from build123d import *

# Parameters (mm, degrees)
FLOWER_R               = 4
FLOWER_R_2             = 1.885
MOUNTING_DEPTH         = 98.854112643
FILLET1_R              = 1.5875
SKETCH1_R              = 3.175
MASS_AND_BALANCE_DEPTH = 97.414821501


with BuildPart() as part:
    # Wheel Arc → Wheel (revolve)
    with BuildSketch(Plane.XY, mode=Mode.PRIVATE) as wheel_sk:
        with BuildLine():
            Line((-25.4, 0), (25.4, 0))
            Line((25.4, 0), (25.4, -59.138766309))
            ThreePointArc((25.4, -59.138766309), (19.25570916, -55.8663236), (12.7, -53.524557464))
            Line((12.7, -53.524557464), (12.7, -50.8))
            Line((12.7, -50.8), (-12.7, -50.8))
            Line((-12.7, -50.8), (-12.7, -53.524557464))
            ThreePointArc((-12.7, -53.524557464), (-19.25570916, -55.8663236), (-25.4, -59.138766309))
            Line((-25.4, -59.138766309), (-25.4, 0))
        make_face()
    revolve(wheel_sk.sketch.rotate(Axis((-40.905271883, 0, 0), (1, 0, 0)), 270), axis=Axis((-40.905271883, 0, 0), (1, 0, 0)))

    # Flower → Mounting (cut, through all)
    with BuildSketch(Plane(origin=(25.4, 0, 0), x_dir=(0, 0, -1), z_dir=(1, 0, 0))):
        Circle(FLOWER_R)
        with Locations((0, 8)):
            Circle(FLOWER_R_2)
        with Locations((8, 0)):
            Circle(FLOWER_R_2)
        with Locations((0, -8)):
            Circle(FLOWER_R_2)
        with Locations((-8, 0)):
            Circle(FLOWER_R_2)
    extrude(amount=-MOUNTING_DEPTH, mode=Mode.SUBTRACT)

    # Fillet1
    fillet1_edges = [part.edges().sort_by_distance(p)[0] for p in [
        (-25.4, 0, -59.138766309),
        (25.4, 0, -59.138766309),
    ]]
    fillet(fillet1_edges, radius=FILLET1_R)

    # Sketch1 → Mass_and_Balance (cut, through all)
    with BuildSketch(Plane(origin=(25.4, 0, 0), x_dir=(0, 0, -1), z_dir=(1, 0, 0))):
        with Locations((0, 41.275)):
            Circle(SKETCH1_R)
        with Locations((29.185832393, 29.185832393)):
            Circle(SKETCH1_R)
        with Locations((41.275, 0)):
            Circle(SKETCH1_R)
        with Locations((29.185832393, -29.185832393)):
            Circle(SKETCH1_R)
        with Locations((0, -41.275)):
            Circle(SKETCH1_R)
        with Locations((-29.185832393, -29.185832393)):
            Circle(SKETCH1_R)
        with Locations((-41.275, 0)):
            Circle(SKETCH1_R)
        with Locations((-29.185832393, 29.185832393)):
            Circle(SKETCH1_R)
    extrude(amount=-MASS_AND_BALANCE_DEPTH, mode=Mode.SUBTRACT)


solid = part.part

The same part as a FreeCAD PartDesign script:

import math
import FreeCAD as App
import Part
import Sketcher

V = App.Vector
Q = App.Units.Quantity


def edges_at(feature, points):
    """Names of the edges that pass closest to the given points."""
    edges = feature.Shape.Edges
    near = lambda p: min(range(len(edges)), key=lambda i: edges[i].distToShape(Part.Vertex(*p))[0])
    return sorted({f"Edge{near(p) + 1}" for p in points})

doc = App.newDocument("Part")
body = doc.addObject("PartDesign::Body", "Body")

# Sketch on XY plane
sketch1 = body.newObject("Sketcher::SketchObject", "Sketch")
sketch1.AttachmentSupport = (doc.getObject("XY_Plane"), [""])
sketch1.MapMode = "FlatFace"
sketch1.addGeometry([
    Part.LineSegment(V(25.4, 0, 0), V(-25.4, 0, 0)),  # 0
    Part.LineSegment(V(-25.4, 0, 0), V(-25.4, -59.138766, 0)),  # 1
    Part.ArcOfCircle(Part.Circle(V(0, -99.425, 0), V(0, 0, 1), 47.625), math.radians(105.46601), math.radians(122.230953)),  # 2
    Part.LineSegment(V(-12.7, -53.524557, 0), V(-12.7, -50.8, 0)),  # 3
    Part.LineSegment(V(-12.7, -50.8, 0), V(12.7, -50.8, 0)),  # 4
    Part.LineSegment(V(12.7, -50.8, 0), V(12.7, -53.524557, 0)),  # 5
    Part.ArcOfCircle(Part.Circle(V(0, -99.425, 0), V(0, 0, 1), 47.625), math.radians(57.769047), math.radians(74.53399)),  # 6
    Part.LineSegment(V(25.4, -59.138766, 0), V(25.4, 0, 0)),  # 7
], False)
sketch1.addConstraint([
    Sketcher.Constraint("Coincident", 0, 2, 1, 1),
    Sketcher.Constraint("Coincident", 1, 2, 2, 2),
    Sketcher.Constraint("Coincident", 2, 1, 3, 1),
    Sketcher.Constraint("Coincident", 3, 2, 4, 1),
    Sketcher.Constraint("Coincident", 4, 2, 5, 1),
    Sketcher.Constraint("Coincident", 5, 2, 6, 2),
    Sketcher.Constraint("Coincident", 6, 1, 7, 1),
    Sketcher.Constraint("Coincident", 7, 2, 0, 1),
    Sketcher.Constraint("Horizontal", 0),
    Sketcher.Constraint("Vertical", 1),
    Sketcher.Constraint("Vertical", 3),
    Sketcher.Constraint("Horizontal", 4),
    Sketcher.Constraint("Vertical", 5),
    Sketcher.Constraint("Vertical", 7),
    Sketcher.Constraint("Coincident", 6, 3, 2, 3),
    Sketcher.Constraint("Equal", 2, 6),
    Sketcher.Constraint("Symmetric", 0, 2, 7, 2, -1, 1),
    Sketcher.Constraint("Symmetric", 2, 1, 5, 2, -2),
    Sketcher.Constraint("DistanceX", 0, 2, 0, 1, Q("2 in")),
    Sketcher.Constraint("DistanceX", 4, 1, 4, 2, Q("1 in")),
    Sketcher.Constraint("DistanceY", 3, 2, -1, 1, Q("2 in")),
    Sketcher.Constraint("Radius", 2, Q("1.875 in")),
    Sketcher.Constraint("DistanceY", 2, 3, -1, 1, 99.425),
])
revolution = body.newObject("PartDesign::Revolution", "Revolution")
revolution.Profile = sketch1
revolution.ReferenceAxis = (sketch1, ["H_Axis"])
revolution.Angle = 360

# Sketch on YZ plane
sketch2 = body.newObject("Sketcher::SketchObject", "Sketch001")
sketch2.AttachmentSupport = (doc.getObject("YZ_Plane"), [""])
sketch2.MapMode = "FlatFace"
sketch2.AttachmentOffset = App.Placement(V(0, 0, 1 * 25.4), App.Rotation())
sketch2.addGeometry([
    Part.Circle(V(0, 0, 0), V(0, 0, 1), 4),  # 0
    Part.Circle(V(8, 0, 0), V(0, 0, 1), 1.885),  # 1
    Part.Circle(V(0, -8, 0), V(0, 0, 1), 1.885),  # 2
    Part.Circle(V(-8, 0, 0), V(0, 0, 1), 1.885),  # 3
    Part.Circle(V(0, 8, 0), V(0, 0, 1), 1.885),  # 4
], False)
sketch2.addConstraint([
    Sketcher.Constraint("Coincident", 0, 3, -1, 1),
    Sketcher.Constraint("Equal", 1, 2),
    Sketcher.Constraint("Equal", 2, 3),
    Sketcher.Constraint("Equal", 3, 4),
    Sketcher.Constraint("Symmetric", 1, 3, 3, 3, -1, 1),
    Sketcher.Constraint("Symmetric", 2, 3, 4, 3, -1, 1),
    Sketcher.Constraint("PointOnObject", 1, 3, -1),
    Sketcher.Constraint("PointOnObject", 2, 3, -2),
    Sketcher.Constraint("Diameter", 0, 8.0),
    Sketcher.Constraint("Diameter", 1, 3.77),
    Sketcher.Constraint("DistanceX", -1, 1, 1, 3, 8.0),
    Sketcher.Constraint("DistanceY", 2, 3, -1, 1, 8.0),
])
pocket1 = body.newObject("PartDesign::Pocket", "Pocket")
pocket1.Profile = sketch2
pocket1.Type = "ThroughAll"
doc.recompute()

fillet = body.newObject("PartDesign::Fillet", "Fillet")
fillet.Base = (pocket1, edges_at(pocket1, [(-25.4, 0, -59.139), (25.4, 0, -59.139)]))
fillet.Radius = Q("0.0625 in")

# Sketch on YZ plane
sketch3 = body.newObject("Sketcher::SketchObject", "Sketch002")
sketch3.AttachmentSupport = (doc.getObject("YZ_Plane"), [""])
sketch3.MapMode = "FlatFace"
sketch3.AttachmentOffset = App.Placement(V(0, 0, 1 * 25.4), App.Rotation())
sketch3.addGeometry([
    Part.Circle(V(41.275, 0, 0), V(0, 0, 1), 3.175),  # 0
    Part.Circle(V(29.185832, -29.185832, 0), V(0, 0, 1), 3.175),  # 1
    Part.Circle(V(0, -41.275, 0), V(0, 0, 1), 3.175),  # 2
    Part.Circle(V(-29.185832, -29.185832, 0), V(0, 0, 1), 3.175),  # 3
    Part.Circle(V(-41.275, 0, 0), V(0, 0, 1), 3.175),  # 4
    Part.Circle(V(-29.185832, 29.185832, 0), V(0, 0, 1), 3.175),  # 5
    Part.Circle(V(0, 41.275, 0), V(0, 0, 1), 3.175),  # 6
    Part.Circle(V(29.185832, 29.185832, 0), V(0, 0, 1), 3.175),  # 7
], False)
sketch3.addConstraint([
    Sketcher.Constraint("Equal", 0, 1),
    Sketcher.Constraint("Equal", 1, 2),
    Sketcher.Constraint("Equal", 2, 3),
    Sketcher.Constraint("Equal", 3, 4),
    Sketcher.Constraint("Equal", 4, 5),
    Sketcher.Constraint("Equal", 5, 6),
    Sketcher.Constraint("Equal", 6, 7),
    Sketcher.Constraint("Symmetric", 0, 3, 4, 3, -1, 1),
    Sketcher.Constraint("Symmetric", 1, 3, 5, 3, -1, 1),
    Sketcher.Constraint("Symmetric", 2, 3, 6, 3, -1, 1),
    Sketcher.Constraint("Symmetric", 3, 3, 7, 3, -1, 1),
    Sketcher.Constraint("Symmetric", 1, 3, 3, 3, -2),
    Sketcher.Constraint("PointOnObject", 0, 3, -1),
    Sketcher.Constraint("PointOnObject", 2, 3, -2),
    Sketcher.Constraint("Diameter", 0, Q("0.25 in")),
    Sketcher.Constraint("DistanceX", 4, 3, 0, 3, Q("3.25 in")),
    Sketcher.Constraint("DistanceY", 2, 3, -1, 1, Q("1.625 in")),
    Sketcher.Constraint("DistanceX", -1, 1, 1, 3, 29.185832),
    Sketcher.Constraint("DistanceY", 1, 3, -1, 1, 29.185832),
])
pocket2 = body.newObject("PartDesign::Pocket", "Pocket001")
pocket2.Profile = sketch3
pocket2.Type = "ThroughAll"

doc.recompute()
